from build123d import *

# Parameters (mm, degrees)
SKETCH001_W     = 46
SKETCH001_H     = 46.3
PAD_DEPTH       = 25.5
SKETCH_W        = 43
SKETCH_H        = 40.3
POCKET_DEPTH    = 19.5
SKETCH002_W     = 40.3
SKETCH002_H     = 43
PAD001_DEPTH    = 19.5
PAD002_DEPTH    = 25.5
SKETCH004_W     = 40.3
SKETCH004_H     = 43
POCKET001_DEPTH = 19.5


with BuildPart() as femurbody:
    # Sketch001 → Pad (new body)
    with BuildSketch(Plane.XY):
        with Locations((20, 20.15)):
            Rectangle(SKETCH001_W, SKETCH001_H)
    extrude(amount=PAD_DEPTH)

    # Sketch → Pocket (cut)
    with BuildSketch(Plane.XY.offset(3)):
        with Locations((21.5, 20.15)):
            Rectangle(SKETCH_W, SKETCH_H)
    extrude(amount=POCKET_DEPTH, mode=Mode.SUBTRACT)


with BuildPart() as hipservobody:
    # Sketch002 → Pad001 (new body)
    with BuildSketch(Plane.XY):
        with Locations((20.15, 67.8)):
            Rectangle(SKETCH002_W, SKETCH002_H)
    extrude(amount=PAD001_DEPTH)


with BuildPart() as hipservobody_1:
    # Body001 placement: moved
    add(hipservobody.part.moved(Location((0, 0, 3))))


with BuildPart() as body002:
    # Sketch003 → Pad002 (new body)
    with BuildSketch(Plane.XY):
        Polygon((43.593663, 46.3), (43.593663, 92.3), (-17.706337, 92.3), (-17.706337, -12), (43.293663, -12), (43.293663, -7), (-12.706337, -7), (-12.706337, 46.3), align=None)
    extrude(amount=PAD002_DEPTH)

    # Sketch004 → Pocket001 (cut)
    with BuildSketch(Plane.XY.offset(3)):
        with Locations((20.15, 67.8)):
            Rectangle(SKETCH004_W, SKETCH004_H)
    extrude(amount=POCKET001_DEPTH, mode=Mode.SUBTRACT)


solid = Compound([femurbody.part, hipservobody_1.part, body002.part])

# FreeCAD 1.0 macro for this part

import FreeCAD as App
import Part
import Sketcher

V = App.Vector
Q = App.Units.Quantity

doc = App.newDocument("Part")
body = doc.addObject("PartDesign::Body", "Body")

sketch1 = body.newObject("Sketcher::SketchObject", "Sketch")
sketch1.AttachmentSupport = (doc.getObject("XY_Plane"), [""])
sketch1.MapMode = "FlatFace"
sketch1.addGeometry(Part.LineSegment(V(-3, 43, 0), V(-3, -3, 0)), False)
sketch1.addGeometry(Part.LineSegment(V(-3, -3, 0), V(43, -3, 0)), False)
sketch1.addGeometry(Part.LineSegment(V(43, -3, 0), V(43, 43, 0)), False)
sketch1.addGeometry(Part.LineSegment(V(43, 43, 0), V(-3, 43, 0)), False)
sketch1.addConstraint(Sketcher.Constraint("Coincident", 0, 2, 1, 1))
sketch1.addConstraint(Sketcher.Constraint("Coincident", 1, 2, 2, 1))
sketch1.addConstraint(Sketcher.Constraint("Coincident", 2, 2, 3, 1))
sketch1.addConstraint(Sketcher.Constraint("Coincident", 3, 2, 0, 1))
sketch1.addConstraint(Sketcher.Constraint("Vertical", 0))
sketch1.addConstraint(Sketcher.Constraint("Horizontal", 1))
sketch1.addConstraint(Sketcher.Constraint("Vertical", 2))
sketch1.addConstraint(Sketcher.Constraint("Horizontal", 3))
sketch1.addConstraint(Sketcher.Constraint("DistanceX", 1, 1, 1, 2, Q("46 mm")))
sketch1.addConstraint(Sketcher.Constraint("DistanceY", 0, 2, 0, 1, Q("46.3 mm")))
sketch1.addConstraint(Sketcher.Constraint("DistanceX", 0, 2, -1, 1, Q("3 mm")))
sketch1.addConstraint(Sketcher.Constraint("DistanceY", 0, 2, -1, 1, Q("3 mm")))
pad1 = body.newObject("PartDesign::Pad", "Pad")
pad1.Profile = sketch1
pad1.Length = 25.5

sketch2 = body.newObject("Sketcher::SketchObject", "Sketch001")
sketch2.AttachmentSupport = (doc.getObject("XY_Plane"), [""])
sketch2.MapMode = "FlatFace"
sketch2.AttachmentOffset = App.Placement(V(0, 0, 3), App.Rotation())
sketch2.addGeometry(Part.LineSegment(V(0, 40, 0), V(0, 0, 0)), False)
sketch2.addGeometry(Part.LineSegment(V(0, 0, 0), V(43, 0, 0)), False)
sketch2.addGeometry(Part.LineSegment(V(43, 0, 0), V(43, 40, 0)), False)
sketch2.addGeometry(Part.LineSegment(V(43, 40, 0), V(0, 40, 0)), False)
sketch2.addConstraint(Sketcher.Constraint("Coincident", 0, 2, 1, 1))
sketch2.addConstraint(Sketcher.Constraint("Coincident", 1, 2, 2, 1))
sketch2.addConstraint(Sketcher.Constraint("Coincident", 2, 2, 3, 1))
sketch2.addConstraint(Sketcher.Constraint("Coincident", 3, 2, 0, 1))
sketch2.addConstraint(Sketcher.Constraint("Vertical", 0))
sketch2.addConstraint(Sketcher.Constraint("Horizontal", 1))
sketch2.addConstraint(Sketcher.Constraint("Vertical", 2))
sketch2.addConstraint(Sketcher.Constraint("Horizontal", 3))
sketch2.addConstraint(Sketcher.Constraint("Coincident", 0, 2, -1, 1))
sketch2.addConstraint(Sketcher.Constraint("DistanceX", 1, 1, 1, 2, Q("43 mm")))
sketch2.addConstraint(Sketcher.Constraint("DistanceY", 0, 2, 0, 1, Q("40.3 mm")))
pocket1 = body.newObject("PartDesign::Pocket", "Pocket")
pocket1.Profile = sketch2
pocket1.Length = 19.5
pocket1.Reversed = True
body2 = doc.addObject("PartDesign::Body", "Body001")

sketch3 = body2.newObject("Sketcher::SketchObject", "Sketch002")
sketch3.AttachmentSupport = (doc.getObject("XY_Plane001"), [""])
sketch3.MapMode = "FlatFace"
sketch3.addGeometry(Part.LineSegment(V(0, 89, 0), V(0, 46, 0)), False)
sketch3.addGeometry(Part.LineSegment(V(0, 46, 0), V(40, 46, 0)), False)
sketch3.addGeometry(Part.LineSegment(V(40, 46, 0), V(40, 89, 0)), False)
sketch3.addGeometry(Part.LineSegment(V(40, 89, 0), V(0, 89, 0)), False)
sketch3.addConstraint(Sketcher.Constraint("Coincident", 0, 2, 1, 1))
sketch3.addConstraint(Sketcher.Constraint("Coincident", 1, 2, 2, 1))
sketch3.addConstraint(Sketcher.Constraint("Coincident", 2, 2, 3, 1))
sketch3.addConstraint(Sketcher.Constraint("Coincident", 3, 2, 0, 1))
sketch3.addConstraint(Sketcher.Constraint("Vertical", 0))
sketch3.addConstraint(Sketcher.Constraint("Horizontal", 1))
sketch3.addConstraint(Sketcher.Constraint("Vertical", 2))
sketch3.addConstraint(Sketcher.Constraint("Horizontal", 3))
sketch3.addConstraint(Sketcher.Constraint("PointOnObject", 0, 2, -2))
sketch3.addConstraint(Sketcher.Constraint("DistanceY", 0, 2, 0, 1, Q("43 mm")))
sketch3.addConstraint(Sketcher.Constraint("DistanceX", 1, 1, 1, 2, Q("40.3 mm")))
sketch3.addConstraint(Sketcher.Constraint("DistanceY", -1, 1, 0, 2, Q("46.3 mm")))
pad2 = body2.newObject("PartDesign::Pad", "Pad001")
pad2.Profile = sketch3
pad2.Length = 19.5
body3 = doc.addObject("PartDesign::Body", "Body002")
doc.recompute()

body2.Placement = App.Placement(V(0, 0, 3), App.Rotation(V(0, 0, 1), 0))
boolean = body3.newObject("PartDesign::Boolean", "Boolean")
boolean.Type = "Fuse"
boolean.addObjects([body2])
body4 = doc.addObject("PartDesign::Body", "Body003")

sketch4 = body4.newObject("Sketcher::SketchObject", "Sketch003")
sketch4.AttachmentSupport = (doc.getObject("XY_Plane003"), [""])
sketch4.MapMode = "FlatFace"
sketch4.addGeometry(Part.LineSegment(V(44, 46, 0), V(44, 92, 0)), False)
sketch4.addGeometry(Part.LineSegment(V(44, 92, 0), V(-18, 92, 0)), False)
sketch4.addGeometry(Part.LineSegment(V(-18, 92, 0), V(-18, -12, 0)), False)
sketch4.addGeometry(Part.LineSegment(V(-18, -12, 0), V(43, -12, 0)), False)
sketch4.addGeometry(Part.LineSegment(V(43, -12, 0), V(43, -7, 0)), False)
sketch4.addGeometry(Part.LineSegment(V(43, -7, 0), V(-13, -7, 0)), False)
sketch4.addGeometry(Part.LineSegment(V(-13, -7, 0), V(-13, 46, 0)), False)
sketch4.addGeometry(Part.LineSegment(V(-13, 46, 0), V(44, 46, 0)), False)
sketch4.addConstraint(Sketcher.Constraint("Coincident", 0, 2, 1, 1))
sketch4.addConstraint(Sketcher.Constraint("Coincident", 1, 2, 2, 1))
sketch4.addConstraint(Sketcher.Constraint("Coincident", 2, 2, 3, 1))
sketch4.addConstraint(Sketcher.Constraint("Coincident", 3, 2, 4, 1))
sketch4.addConstraint(Sketcher.Constraint("Coincident", 4, 2, 5, 1))
sketch4.addConstraint(Sketcher.Constraint("Coincident", 5, 2, 6, 1))
sketch4.addConstraint(Sketcher.Constraint("Coincident", 6, 2, 7, 1))
sketch4.addConstraint(Sketcher.Constraint("Coincident", 7, 2, 0, 1))
sketch4.addConstraint(Sketcher.Constraint("Vertical", 0))
sketch4.addConstraint(Sketcher.Constraint("Horizontal", 1))
sketch4.addConstraint(Sketcher.Constraint("Vertical", 2))
sketch4.addConstraint(Sketcher.Constraint("Horizontal", 3))
sketch4.addConstraint(Sketcher.Constraint("Vertical", 4))
sketch4.addConstraint(Sketcher.Constraint("Horizontal", 5))
sketch4.addConstraint(Sketcher.Constraint("Vertical", 6))
sketch4.addConstraint(Sketcher.Constraint("Horizontal", 7))
sketch4.addConstraint(Sketcher.Constraint("DistanceX", 3, 1, 3, 2, Q("61 mm")))
sketch4.addConstraint(Sketcher.Constraint("DistanceX", 5, 2, 5, 1, Q("56 mm")))
sketch4.addConstraint(Sketcher.Constraint("DistanceY", 0, 1, 0, 2, Q("46 mm")))
sketch4.addConstraint(Sketcher.Constraint("DistanceY", 4, 1, 4, 2, Q("5 mm")))
sketch4.addConstraint(Sketcher.Constraint("DistanceX", 1, 2, 1, 1, Q("61.3 mm")))
sketch4.addConstraint(Sketcher.Constraint("DistanceY", 2, 2, 2, 1, Q("104.3 mm")))
sketch4.addConstraint(Sketcher.Constraint("DistanceY", 2, 2, -1, 1, Q("12 mm")))
sketch4.addConstraint(Sketcher.Constraint("DistanceX", -1, 1, 0, 2, Q("43.593663 mm")))
pad3 = body4.newObject("PartDesign::Pad", "Pad002")
pad3.Profile = sketch4
pad3.Length = 25.5

sketch5 = body4.newObject("Sketcher::SketchObject", "Sketch004")
sketch5.AttachmentSupport = (doc.getObject("XY_Plane003"), [""])
sketch5.MapMode = "FlatFace"
sketch5.AttachmentOffset = App.Placement(V(0, 0, 3), App.Rotation())
sketch5.addGeometry(Part.LineSegment(V(0, 89, 0), V(0, 46, 0)), False)
sketch5.addGeometry(Part.LineSegment(V(0, 46, 0), V(40, 46, 0)), False)
sketch5.addGeometry(Part.LineSegment(V(40, 46, 0), V(40, 89, 0)), False)
sketch5.addGeometry(Part.LineSegment(V(40, 89, 0), V(0, 89, 0)), False)
sketch5.addConstraint(Sketcher.Constraint("Coincident", 0, 2, 1, 1))
sketch5.addConstraint(Sketcher.Constraint("Coincident", 1, 2, 2, 1))
sketch5.addConstraint(Sketcher.Constraint("Coincident", 2, 2, 3, 1))
sketch5.addConstraint(Sketcher.Constraint("Coincident", 3, 2, 0, 1))
sketch5.addConstraint(Sketcher.Constraint("Vertical", 0))
sketch5.addConstraint(Sketcher.Constraint("Horizontal", 1))
sketch5.addConstraint(Sketcher.Constraint("Vertical", 2))
sketch5.addConstraint(Sketcher.Constraint("Horizontal", 3))
sketch5.addConstraint(Sketcher.Constraint("PointOnObject", 0, 2, -2))
sketch5.addConstraint(Sketcher.Constraint("DistanceY", 0, 2, 0, 1, Q("43 mm")))
sketch5.addConstraint(Sketcher.Constraint("DistanceX", 1, 1, 1, 2, Q("40.3 mm")))
sketch5.addConstraint(Sketcher.Constraint("DistanceY", -1, 1, 0, 2, Q("46.3 mm")))
pocket2 = body4.newObject("PartDesign::Pocket", "Pocket001")
pocket2.Profile = sketch5
pocket2.Length = 19.5
pocket2.Reversed = True

doc.recompute()
